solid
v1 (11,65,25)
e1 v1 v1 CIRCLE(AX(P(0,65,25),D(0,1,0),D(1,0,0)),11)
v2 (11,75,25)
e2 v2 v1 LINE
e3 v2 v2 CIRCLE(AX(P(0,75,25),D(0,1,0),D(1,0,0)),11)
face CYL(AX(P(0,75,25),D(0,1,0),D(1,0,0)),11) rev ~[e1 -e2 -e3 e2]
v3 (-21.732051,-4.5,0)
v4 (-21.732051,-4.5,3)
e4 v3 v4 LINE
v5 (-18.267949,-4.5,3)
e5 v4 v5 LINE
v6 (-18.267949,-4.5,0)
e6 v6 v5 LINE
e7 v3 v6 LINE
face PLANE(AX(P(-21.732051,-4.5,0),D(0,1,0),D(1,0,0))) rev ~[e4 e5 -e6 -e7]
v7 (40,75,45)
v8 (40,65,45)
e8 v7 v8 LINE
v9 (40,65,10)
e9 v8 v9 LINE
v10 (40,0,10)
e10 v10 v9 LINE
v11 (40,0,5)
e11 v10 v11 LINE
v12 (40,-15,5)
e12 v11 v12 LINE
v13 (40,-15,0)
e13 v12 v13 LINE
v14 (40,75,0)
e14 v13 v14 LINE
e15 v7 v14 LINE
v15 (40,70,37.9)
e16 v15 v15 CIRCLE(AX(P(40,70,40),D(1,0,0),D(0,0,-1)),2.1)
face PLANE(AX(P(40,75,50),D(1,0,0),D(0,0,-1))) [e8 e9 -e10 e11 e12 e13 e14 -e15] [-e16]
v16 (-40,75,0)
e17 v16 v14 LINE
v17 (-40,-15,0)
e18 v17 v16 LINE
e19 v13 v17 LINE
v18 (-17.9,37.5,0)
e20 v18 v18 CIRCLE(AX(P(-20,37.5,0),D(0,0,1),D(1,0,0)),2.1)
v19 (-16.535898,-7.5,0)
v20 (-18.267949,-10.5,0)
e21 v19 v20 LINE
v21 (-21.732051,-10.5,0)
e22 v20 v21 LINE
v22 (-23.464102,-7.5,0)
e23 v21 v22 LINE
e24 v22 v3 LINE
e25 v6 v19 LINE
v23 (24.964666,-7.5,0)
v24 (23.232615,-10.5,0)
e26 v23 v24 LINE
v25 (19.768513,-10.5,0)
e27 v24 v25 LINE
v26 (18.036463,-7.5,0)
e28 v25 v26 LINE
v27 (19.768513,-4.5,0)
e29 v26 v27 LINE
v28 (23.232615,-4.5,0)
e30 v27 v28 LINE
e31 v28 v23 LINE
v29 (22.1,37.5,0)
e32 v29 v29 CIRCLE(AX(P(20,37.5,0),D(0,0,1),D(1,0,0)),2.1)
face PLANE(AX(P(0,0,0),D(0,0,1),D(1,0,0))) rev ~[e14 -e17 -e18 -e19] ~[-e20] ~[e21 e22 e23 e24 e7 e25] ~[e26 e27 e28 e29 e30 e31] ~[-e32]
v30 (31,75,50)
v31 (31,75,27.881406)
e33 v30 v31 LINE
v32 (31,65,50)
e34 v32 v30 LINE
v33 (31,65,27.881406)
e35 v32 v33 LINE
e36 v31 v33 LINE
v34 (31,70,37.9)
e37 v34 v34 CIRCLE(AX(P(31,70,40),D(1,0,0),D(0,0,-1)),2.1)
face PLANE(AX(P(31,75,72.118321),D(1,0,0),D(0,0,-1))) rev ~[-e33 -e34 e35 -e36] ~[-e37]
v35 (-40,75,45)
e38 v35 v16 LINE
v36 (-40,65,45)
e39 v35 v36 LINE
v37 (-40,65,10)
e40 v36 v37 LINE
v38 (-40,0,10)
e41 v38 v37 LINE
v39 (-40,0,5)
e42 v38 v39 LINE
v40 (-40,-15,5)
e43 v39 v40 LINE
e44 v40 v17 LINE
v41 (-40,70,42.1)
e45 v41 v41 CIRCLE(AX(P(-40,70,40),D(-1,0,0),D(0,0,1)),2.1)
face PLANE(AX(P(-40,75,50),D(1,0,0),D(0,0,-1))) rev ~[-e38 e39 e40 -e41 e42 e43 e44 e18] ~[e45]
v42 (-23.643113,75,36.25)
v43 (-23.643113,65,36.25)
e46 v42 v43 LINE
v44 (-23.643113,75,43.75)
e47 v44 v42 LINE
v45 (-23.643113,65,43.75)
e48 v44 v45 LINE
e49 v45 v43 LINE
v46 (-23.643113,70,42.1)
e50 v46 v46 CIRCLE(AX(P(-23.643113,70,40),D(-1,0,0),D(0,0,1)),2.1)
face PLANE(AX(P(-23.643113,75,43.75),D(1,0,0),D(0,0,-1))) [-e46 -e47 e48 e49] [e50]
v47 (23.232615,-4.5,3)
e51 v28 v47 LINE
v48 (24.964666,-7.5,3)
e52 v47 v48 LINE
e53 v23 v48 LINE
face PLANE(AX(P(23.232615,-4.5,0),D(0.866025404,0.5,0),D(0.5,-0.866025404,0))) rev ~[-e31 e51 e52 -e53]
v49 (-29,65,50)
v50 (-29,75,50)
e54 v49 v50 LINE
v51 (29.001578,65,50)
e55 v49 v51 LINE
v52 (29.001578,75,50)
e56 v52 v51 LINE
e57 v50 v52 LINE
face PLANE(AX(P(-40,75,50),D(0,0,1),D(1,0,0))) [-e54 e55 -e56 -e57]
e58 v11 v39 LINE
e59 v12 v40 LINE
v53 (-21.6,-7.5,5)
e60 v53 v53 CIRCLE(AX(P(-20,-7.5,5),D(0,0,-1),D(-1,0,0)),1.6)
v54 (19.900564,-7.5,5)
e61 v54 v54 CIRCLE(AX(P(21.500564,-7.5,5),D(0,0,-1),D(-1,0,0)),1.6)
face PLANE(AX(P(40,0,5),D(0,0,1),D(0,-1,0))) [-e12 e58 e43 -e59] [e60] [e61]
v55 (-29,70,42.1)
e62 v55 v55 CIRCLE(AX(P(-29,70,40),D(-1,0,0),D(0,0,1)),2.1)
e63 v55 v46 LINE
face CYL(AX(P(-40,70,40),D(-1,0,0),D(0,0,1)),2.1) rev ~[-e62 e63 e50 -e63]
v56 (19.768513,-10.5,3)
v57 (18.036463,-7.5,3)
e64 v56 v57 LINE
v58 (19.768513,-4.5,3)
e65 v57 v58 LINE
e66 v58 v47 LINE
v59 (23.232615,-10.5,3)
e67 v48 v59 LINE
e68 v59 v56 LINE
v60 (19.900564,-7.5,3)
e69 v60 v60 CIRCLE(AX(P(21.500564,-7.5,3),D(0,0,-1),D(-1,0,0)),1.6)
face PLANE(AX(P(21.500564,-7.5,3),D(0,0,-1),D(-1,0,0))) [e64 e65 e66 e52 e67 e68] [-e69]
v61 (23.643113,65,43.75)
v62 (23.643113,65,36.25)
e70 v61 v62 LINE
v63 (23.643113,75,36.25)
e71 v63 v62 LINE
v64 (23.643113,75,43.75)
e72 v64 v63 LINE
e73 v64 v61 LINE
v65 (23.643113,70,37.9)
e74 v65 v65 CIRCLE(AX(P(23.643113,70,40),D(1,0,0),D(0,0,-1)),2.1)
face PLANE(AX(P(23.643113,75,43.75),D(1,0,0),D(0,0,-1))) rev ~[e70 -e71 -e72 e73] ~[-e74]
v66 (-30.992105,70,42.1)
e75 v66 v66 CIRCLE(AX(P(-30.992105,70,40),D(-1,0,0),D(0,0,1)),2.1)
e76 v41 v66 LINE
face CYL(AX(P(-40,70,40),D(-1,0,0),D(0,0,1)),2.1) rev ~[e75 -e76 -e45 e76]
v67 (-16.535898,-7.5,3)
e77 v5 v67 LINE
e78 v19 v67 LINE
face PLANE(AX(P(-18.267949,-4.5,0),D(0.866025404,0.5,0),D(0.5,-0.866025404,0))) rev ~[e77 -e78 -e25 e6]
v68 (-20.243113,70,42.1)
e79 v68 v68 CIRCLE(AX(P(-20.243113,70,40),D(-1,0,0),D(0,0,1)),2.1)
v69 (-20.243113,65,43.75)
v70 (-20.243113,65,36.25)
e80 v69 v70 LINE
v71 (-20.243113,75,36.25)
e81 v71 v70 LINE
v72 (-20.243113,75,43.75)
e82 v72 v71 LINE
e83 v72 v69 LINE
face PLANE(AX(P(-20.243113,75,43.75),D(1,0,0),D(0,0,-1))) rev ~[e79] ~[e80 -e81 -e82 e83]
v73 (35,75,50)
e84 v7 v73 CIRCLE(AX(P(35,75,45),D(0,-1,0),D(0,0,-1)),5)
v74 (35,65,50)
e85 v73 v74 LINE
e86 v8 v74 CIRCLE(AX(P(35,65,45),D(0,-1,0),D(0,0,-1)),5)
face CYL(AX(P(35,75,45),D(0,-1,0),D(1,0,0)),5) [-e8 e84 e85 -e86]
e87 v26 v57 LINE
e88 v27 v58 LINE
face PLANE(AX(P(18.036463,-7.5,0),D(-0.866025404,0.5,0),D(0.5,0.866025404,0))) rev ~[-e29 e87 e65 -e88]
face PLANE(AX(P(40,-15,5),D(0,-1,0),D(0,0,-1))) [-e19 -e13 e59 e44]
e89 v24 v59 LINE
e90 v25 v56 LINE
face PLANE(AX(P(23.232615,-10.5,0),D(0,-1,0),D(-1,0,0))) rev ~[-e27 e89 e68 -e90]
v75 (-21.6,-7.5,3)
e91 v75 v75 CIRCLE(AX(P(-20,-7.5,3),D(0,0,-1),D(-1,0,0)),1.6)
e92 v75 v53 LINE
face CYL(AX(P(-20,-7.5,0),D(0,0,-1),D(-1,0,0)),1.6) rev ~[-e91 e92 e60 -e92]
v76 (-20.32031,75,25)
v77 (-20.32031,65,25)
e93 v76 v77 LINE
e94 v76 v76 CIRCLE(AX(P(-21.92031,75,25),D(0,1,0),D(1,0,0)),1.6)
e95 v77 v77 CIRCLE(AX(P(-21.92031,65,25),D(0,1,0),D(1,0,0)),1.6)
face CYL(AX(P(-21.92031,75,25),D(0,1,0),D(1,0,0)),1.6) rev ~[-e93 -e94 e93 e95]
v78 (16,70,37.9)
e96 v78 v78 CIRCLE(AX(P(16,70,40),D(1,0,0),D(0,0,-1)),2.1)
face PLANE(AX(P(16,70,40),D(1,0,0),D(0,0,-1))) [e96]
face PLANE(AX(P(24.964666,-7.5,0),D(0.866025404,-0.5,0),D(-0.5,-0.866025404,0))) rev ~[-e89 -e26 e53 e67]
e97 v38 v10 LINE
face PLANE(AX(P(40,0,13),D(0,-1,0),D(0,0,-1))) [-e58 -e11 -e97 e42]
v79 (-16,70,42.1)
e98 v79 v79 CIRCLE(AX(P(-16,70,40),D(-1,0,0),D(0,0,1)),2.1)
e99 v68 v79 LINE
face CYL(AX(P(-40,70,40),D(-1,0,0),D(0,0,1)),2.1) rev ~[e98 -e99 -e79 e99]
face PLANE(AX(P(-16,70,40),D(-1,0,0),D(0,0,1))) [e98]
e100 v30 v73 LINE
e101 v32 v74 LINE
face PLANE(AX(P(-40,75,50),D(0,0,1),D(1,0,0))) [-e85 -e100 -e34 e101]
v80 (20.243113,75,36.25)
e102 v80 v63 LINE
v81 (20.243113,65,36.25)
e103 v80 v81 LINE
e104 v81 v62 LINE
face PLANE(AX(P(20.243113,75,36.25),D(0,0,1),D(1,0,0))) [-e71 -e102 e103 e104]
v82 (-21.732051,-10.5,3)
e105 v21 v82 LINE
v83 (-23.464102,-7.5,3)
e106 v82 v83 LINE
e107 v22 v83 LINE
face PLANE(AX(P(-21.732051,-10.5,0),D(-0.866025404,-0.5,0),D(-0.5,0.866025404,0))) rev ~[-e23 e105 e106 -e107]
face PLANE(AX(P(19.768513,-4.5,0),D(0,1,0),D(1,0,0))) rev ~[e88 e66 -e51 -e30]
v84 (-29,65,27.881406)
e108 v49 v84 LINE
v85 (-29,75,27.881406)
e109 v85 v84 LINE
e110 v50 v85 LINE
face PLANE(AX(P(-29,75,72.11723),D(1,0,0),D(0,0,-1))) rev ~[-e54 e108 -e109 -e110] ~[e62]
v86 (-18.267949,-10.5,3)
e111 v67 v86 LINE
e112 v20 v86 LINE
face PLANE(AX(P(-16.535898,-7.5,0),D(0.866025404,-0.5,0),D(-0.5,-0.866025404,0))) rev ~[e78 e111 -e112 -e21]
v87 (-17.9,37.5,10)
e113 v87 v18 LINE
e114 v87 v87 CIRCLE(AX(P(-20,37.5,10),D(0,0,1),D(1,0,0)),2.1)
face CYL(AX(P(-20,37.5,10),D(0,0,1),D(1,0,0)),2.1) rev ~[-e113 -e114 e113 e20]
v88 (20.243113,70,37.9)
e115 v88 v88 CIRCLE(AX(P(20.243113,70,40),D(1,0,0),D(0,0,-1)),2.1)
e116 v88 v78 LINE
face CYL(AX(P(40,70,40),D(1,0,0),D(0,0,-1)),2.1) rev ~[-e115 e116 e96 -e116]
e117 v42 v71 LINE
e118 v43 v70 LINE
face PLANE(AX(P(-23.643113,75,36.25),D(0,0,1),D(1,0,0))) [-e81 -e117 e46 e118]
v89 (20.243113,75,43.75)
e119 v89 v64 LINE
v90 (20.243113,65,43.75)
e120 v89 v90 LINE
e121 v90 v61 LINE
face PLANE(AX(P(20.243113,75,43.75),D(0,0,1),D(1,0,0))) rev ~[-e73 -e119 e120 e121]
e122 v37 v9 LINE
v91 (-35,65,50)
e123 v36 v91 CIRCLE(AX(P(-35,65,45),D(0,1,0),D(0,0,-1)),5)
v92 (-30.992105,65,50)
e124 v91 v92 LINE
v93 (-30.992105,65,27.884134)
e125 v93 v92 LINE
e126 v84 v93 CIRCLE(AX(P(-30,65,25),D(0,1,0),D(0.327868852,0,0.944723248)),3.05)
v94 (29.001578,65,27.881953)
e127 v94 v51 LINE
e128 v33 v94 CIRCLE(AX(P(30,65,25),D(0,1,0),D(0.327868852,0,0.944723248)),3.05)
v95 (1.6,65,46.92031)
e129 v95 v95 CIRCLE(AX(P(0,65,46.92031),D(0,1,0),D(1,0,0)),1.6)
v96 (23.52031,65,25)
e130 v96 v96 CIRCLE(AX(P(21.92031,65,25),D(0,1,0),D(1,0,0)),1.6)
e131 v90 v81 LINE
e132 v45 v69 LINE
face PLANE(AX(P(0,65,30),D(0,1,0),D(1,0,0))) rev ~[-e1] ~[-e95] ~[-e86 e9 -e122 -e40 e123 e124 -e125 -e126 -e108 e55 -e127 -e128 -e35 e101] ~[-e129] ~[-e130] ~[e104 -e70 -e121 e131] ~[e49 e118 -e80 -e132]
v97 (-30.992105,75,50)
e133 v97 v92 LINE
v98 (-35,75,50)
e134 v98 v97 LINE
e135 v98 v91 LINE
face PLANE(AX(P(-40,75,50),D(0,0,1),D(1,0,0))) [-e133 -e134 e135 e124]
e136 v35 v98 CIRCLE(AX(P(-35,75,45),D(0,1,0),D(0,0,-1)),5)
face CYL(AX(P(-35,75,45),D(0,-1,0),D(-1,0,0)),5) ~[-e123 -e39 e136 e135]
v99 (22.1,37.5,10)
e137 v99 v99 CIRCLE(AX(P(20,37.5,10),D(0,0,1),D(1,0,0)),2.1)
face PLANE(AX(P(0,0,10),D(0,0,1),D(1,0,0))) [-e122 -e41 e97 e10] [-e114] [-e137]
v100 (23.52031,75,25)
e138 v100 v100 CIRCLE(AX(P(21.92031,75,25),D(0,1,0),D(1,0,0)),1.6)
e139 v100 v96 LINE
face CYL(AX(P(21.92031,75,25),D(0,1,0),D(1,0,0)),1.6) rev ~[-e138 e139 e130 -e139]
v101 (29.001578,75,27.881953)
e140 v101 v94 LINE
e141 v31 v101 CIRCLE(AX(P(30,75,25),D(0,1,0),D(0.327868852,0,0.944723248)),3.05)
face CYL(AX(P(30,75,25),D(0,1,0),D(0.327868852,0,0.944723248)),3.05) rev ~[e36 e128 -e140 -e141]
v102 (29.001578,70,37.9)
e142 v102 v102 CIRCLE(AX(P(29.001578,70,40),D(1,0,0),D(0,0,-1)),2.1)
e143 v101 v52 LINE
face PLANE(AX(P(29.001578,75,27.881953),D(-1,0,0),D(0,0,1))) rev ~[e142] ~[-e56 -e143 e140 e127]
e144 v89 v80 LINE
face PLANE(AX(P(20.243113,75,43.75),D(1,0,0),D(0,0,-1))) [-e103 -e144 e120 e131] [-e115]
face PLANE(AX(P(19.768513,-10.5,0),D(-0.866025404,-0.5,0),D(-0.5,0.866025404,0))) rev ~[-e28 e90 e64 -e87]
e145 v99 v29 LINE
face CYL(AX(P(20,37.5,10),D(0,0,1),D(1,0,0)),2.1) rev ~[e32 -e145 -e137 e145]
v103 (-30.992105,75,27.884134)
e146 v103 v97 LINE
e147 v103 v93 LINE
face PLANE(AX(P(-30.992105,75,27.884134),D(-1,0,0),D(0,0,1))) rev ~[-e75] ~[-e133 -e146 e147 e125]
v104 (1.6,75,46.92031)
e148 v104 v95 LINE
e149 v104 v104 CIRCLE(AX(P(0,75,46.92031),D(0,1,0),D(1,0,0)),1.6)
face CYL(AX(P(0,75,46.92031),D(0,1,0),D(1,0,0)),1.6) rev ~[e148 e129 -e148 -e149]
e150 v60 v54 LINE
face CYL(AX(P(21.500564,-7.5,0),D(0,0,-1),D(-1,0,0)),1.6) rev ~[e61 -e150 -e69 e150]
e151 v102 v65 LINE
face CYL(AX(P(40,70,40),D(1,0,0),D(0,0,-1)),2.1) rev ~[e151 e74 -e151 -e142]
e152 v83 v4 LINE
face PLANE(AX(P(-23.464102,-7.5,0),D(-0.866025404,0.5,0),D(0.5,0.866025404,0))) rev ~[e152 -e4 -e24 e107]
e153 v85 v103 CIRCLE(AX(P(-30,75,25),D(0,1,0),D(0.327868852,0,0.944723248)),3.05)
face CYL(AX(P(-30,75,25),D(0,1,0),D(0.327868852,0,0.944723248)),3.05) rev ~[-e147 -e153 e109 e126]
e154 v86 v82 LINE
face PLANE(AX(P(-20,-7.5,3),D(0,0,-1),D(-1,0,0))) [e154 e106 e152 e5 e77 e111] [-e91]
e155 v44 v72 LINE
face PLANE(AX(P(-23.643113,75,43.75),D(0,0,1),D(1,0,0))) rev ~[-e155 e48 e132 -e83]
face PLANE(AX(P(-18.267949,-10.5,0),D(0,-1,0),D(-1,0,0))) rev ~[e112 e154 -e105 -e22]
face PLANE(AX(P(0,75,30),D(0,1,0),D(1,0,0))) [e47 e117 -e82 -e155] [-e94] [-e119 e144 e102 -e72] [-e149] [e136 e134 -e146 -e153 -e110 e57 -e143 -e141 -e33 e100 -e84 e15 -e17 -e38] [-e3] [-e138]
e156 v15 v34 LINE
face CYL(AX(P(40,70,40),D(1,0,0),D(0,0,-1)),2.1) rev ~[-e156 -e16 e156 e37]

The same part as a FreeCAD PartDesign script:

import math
import FreeCAD as App
import Part
import Sketcher

V = App.Vector
Q = App.Units.Quantity


def edges_at(feature, points):
    """Names of the edges that pass closest to the given points."""
    edges = feature.Shape.Edges
    near = lambda p: min(range(len(edges)), key=lambda i: edges[i].distToShape(Part.Vertex(*p))[0])
    return sorted({f"Edge{near(p) + 1}" for p in points})

doc = App.newDocument("Part")
body = doc.addObject("PartDesign::Body", "Body")

# Sketch on XY plane
sketch1 = body.newObject("Sketcher::SketchObject", "Sketch")
sketch1.AttachmentSupport = (doc.getObject("XY_Plane"), [""])
sketch1.MapMode = "FlatFace"
sketch1.addGeometry(Part.LineSegment(V(-40, 75, 0), V(-40, -75, 0)), False)
sketch1.addGeometry(Part.LineSegment(V(-40, -75, 0), V(40, -75, 0)), False)
sketch1.addGeometry(Part.LineSegment(V(40, -75, 0), V(40, 75, 0)), False)
sketch1.addGeometry(Part.LineSegment(V(40, 75, 0), V(-40, 75, 0)), False)
sketch1.addConstraint(Sketcher.Constraint("Coincident", 0, 2, 1, 1))
sketch1.addConstraint(Sketcher.Constraint("Coincident", 1, 2, 2, 1))
sketch1.addConstraint(Sketcher.Constraint("Coincident", 2, 2, 3, 1))
sketch1.addConstraint(Sketcher.Constraint("Coincident", 3, 2, 0, 1))
sketch1.addConstraint(Sketcher.Constraint("Vertical", 0))
sketch1.addConstraint(Sketcher.Constraint("Horizontal", 1))
sketch1.addConstraint(Sketcher.Constraint("Vertical", 2))
sketch1.addConstraint(Sketcher.Constraint("Horizontal", 3))
sketch1.addConstraint(Sketcher.Constraint("Symmetric", 0, 2, 2, 2, -1, 1))
sketch1.addConstraint(Sketcher.Constraint("DistanceX", 1, 1, 1, 2, Q("80 mm")))
sketch1.addConstraint(Sketcher.Constraint("DistanceY", 0, 2, 0, 1, Q("150 mm")))
pad1 = body.newObject("PartDesign::Pad", "Pad")
pad1.Profile = sketch1
pad1.Length = 10

# Sketch on XZ plane
sketch2 = body.newObject("Sketcher::SketchObject", "Sketch001")
sketch2.AttachmentSupport = (doc.getObject("XZ_Plane"), [""])
sketch2.MapMode = "FlatFace"
sketch2.AttachmentOffset = App.Placement(V(0, 0, 75), App.Rotation())
sketch2.addGeometry(Part.ArcOfCircle(Part.Circle(V(0, 49, 0), V(0, 0, 1), 6), math.radians(180), math.radians(360)), False)
sketch2.addGeometry(Part.LineSegment(V(-6, 49, 0), V(-6, 50, 0)), False)
sketch2.addGeometry(Part.LineSegment(V(-6, 50, 0), V(-29, 50, 0)), False)
sketch2.addGeometry(Part.LineSegment(V(-29, 50, 0), V(-29, 27.9, 0)), False)
sketch2.addGeometry(Part.ArcOfCircle(Part.Circle(V(-30, 25, 0), V(0, 0, 1), 3), math.radians(109), math.radians(431)), False)
sketch2.addGeometry(Part.LineSegment(V(-31, 27.9, 0), V(-31, 50, 0)), False)
sketch2.addGeometry(Part.LineSegment(V(-31, 50, 0), V(-40, 50, 0)), False)
sketch2.addGeometry(Part.LineSegment(V(-40, 50, 0), V(-40, 10, 0)), False)
sketch2.addGeometry(Part.LineSegment(V(-40, 10, 0), V(40, 10, 0)), False)
sketch2.addGeometry(Part.LineSegment(V(40, 10, 0), V(40, 50, 0)), False)
sketch2.addGeometry(Part.LineSegment(V(40, 50, 0), V(31, 50, 0)), False)
sketch2.addGeometry(Part.LineSegment(V(31, 50, 0), V(31, 27.9, 0)), False)
sketch2.addGeometry(Part.ArcOfCircle(Part.Circle(V(30, 25, 0), V(0, 0, 1), 3), math.radians(109), math.radians(431)), False)
sketch2.addGeometry(Part.LineSegment(V(29, 27.9, 0), V(29, 50, 0)), False)
sketch2.addGeometry(Part.LineSegment(V(29, 50, 0), V(6, 50, 0)), False)
sketch2.addGeometry(Part.LineSegment(V(6, 50, 0), V(6, 49, 0)), False)
sketch2.addGeometry(Part.Circle(V(0, 25, 0), V(0, 0, 1), 11.2), False)
sketch2.addConstraint(Sketcher.Constraint("Tangent", 0, 1, 1, 1))
sketch2.addConstraint(Sketcher.Constraint("Coincident", 1, 2, 2, 1))
sketch2.addConstraint(Sketcher.Constraint("Coincident", 2, 2, 3, 1))
sketch2.addConstraint(Sketcher.Constraint("Coincident", 3, 2, 4, 2))
sketch2.addConstraint(Sketcher.Constraint("Coincident", 4, 1, 5, 1))
sketch2.addConstraint(Sketcher.Constraint("Coincident", 5, 2, 6, 1))
sketch2.addConstraint(Sketcher.Constraint("Coincident", 6, 2, 7, 1))
sketch2.addConstraint(Sketcher.Constraint("Coincident", 7, 2, 8, 1))
sketch2.addConstraint(Sketcher.Constraint("Coincident", 8, 2, 9, 1))
sketch2.addConstraint(Sketcher.Constraint("Coincident", 9, 2, 10, 1))
sketch2.addConstraint(Sketcher.Constraint("Coincident", 10, 2, 11, 1))
sketch2.addConstraint(Sketcher.Constraint("Coincident", 11, 2, 12, 2))
sketch2.addConstraint(Sketcher.Constraint("Coincident", 12, 1, 13, 1))
sketch2.addConstraint(Sketcher.Constraint("Coincident", 13, 2, 14, 1))
sketch2.addConstraint(Sketcher.Constraint("Coincident", 14, 2, 15, 1))
sketch2.addConstraint(Sketcher.Constraint("Tangent", 15, 2, 0, 2))
sketch2.addConstraint(Sketcher.Constraint("Vertical", 1))
sketch2.addConstraint(Sketcher.Constraint("Horizontal", 2))
sketch2.addConstraint(Sketcher.Constraint("Vertical", 3))
sketch2.addConstraint(Sketcher.Constraint("Vertical", 5))
sketch2.addConstraint(Sketcher.Constraint("Horizontal", 6))
sketch2.addConstraint(Sketcher.Constraint("Vertical", 7))
sketch2.addConstraint(Sketcher.Constraint("Horizontal", 8))
sketch2.addConstraint(Sketcher.Constraint("Vertical", 9))
sketch2.addConstraint(Sketcher.Constraint("Horizontal", 10))
sketch2.addConstraint(Sketcher.Constraint("Vertical", 11))
sketch2.addConstraint(Sketcher.Constraint("Vertical", 13))
sketch2.addConstraint(Sketcher.Constraint("Horizontal", 14))
sketch2.addConstraint(Sketcher.Constraint("Vertical", 15))
sketch2.addConstraint(Sketcher.Constraint("Equal", 4, 12))
sketch2.addConstraint(Sketcher.Constraint("Symmetric", 4, 3, 12, 3, -2))
sketch2.addConstraint(Sketcher.Constraint("Symmetric", 6, 2, 9, 2, -2))
sketch2.addConstraint(Sketcher.Constraint("Symmetric", 2, 2, 13, 2, -2))
sketch2.addConstraint(Sketcher.Constraint("PointOnObject", 0, 3, -2))
sketch2.addConstraint(Sketcher.Constraint("PointOnObject", 16, 3, -2))
sketch2.addConstraint(Sketcher.Constraint("Horizontal", 12, 3, 16, 3))
sketch2.addConstraint(Sketcher.Constraint("Horizontal", 3, 2, 4, 1))
sketch2.addConstraint(Sketcher.Constraint("Horizontal", 2, 2, 5, 2))
sketch2.addConstraint(Sketcher.Constraint("Horizontal", 4, 1, 11, 2))
sketch2.addConstraint(Sketcher.Constraint("Radius", 0, Q("6 mm")))
sketch2.addConstraint(Sketcher.Constraint("Diameter", 16, Q("22.5 mm")))
sketch2.addConstraint(Sketcher.Constraint("DistanceX", 2, 2, 2, 1, Q("23 mm")))
sketch2.addConstraint(Sketcher.Constraint("DistanceX", 6, 2, 6, 1, Q("9 mm")))
sketch2.addConstraint(Sketcher.Constraint("DistanceX", 8, 1, 8, 2, Q("80 mm")))
sketch2.addConstraint(Sketcher.Constraint("DistanceY", 1, 1, 1, 2, Q("1 mm")))
sketch2.addConstraint(Sketcher.Constraint("DistanceY", 7, 2, 7, 1, Q("40 mm")))
sketch2.addConstraint(Sketcher.Constraint("Radius", 4, Q("3.05 mm")))
sketch2.addConstraint(Sketcher.Constraint("DistanceY", -1, 1, 0, 3, Q("49 mm")))
sketch2.addConstraint(Sketcher.Constraint("DistanceY", -1, 1, 4, 3, Q("25 mm")))
pad2 = body.newObject("PartDesign::Pad", "Pad001")
pad2.Profile = sketch2
pad2.Length = 10
pad2.Reversed = True

# Sketch on XZ plane
sketch3 = body.newObject("Sketcher::SketchObject", "Sketch002")
sketch3.AttachmentSupport = (doc.getObject("XZ_Plane"), [""])
sketch3.MapMode = "FlatFace"
sketch3.AttachmentOffset = App.Placement(V(0, 0, 75), App.Rotation())
sketch3.addGeometry(Part.Circle(V(0, 25, 0), V(0, 0, 1), 11), False)
sketch3.addGeometry(Part.Circle(V(0, 25, 0), V(0, 0, 1), 5), False)
sketch3.addConstraint(Sketcher.Constraint("Coincident", 1, 3, 0, 3))
sketch3.addConstraint(Sketcher.Constraint("PointOnObject", 0, 3, -2))
sketch3.addConstraint(Sketcher.Constraint("Diameter", 1, Q("10 mm")))
sketch3.addConstraint(Sketcher.Constraint("Diameter", 0, Q("22.5 mm")))
sketch3.addConstraint(Sketcher.Constraint("DistanceY", -1, 1, 0, 3, Q("25 mm")))
pad3 = body.newObject("PartDesign::Pad", "Pad002")
pad3.Profile = sketch3
pad3.Length = 4
pad3.Reversed = True

# Sketch on YZ plane
sketch4 = body.newObject("Sketcher::SketchObject", "Sketch003")
sketch4.AttachmentSupport = (doc.getObject("YZ_Plane"), [""])
sketch4.MapMode = "FlatFace"
sketch4.AttachmentOffset = App.Placement(V(0, 0, 40), App.Rotation())
sketch4.addGeometry(Part.Circle(V(-70, 40, 0), V(0, 0, 1), 2.1), False)
sketch4.addConstraint(Sketcher.Constraint("Diameter", 0, Q("4.2 mm")))
sketch4.addConstraint(Sketcher.Constraint("DistanceX", 0, 3, -1, 1, Q("70 mm")))
sketch4.addConstraint(Sketcher.Constraint("DistanceY", -1, 1, 0, 3, Q("40 mm")))
pocket1 = body.newObject("PartDesign::Pocket", "Pocket")
pocket1.Profile = sketch4
pocket1.Length = 24

# Sketch on XZ plane
sketch5 = body.newObject("Sketcher::SketchObject", "Sketch004")
sketch5.AttachmentSupport = (doc.getObject("XZ_Plane"), [""])
sketch5.MapMode = "FlatFace"
sketch5.AttachmentOffset = App.Placement(V(0, 0, 75), App.Rotation())
sketch5.addGeometry(Part.LineSegment(V(-23.6, 43.8, 0), V(-23.6, 36.2, 0)), False)
sketch5.addGeometry(Part.LineSegment(V(-23.6, 36.2, 0), V(-20.2, 36.2, 0)), False)
sketch5.addGeometry(Part.LineSegment(V(-20.2, 36.2, 0), V(-20.2, 43.8, 0)), False)
sketch5.addGeometry(Part.LineSegment(V(-20.2, 43.8, 0), V(-23.6, 43.8, 0)), False)
sketch5.addGeometry(Part.LineSegment(V(20.2, 43.8, 0), V(20.2, 36.2, 0)), False)
sketch5.addGeometry(Part.LineSegment(V(20.2, 36.2, 0), V(23.6, 36.2, 0)), False)
sketch5.addGeometry(Part.LineSegment(V(23.6, 36.2, 0), V(23.6, 43.8, 0)), False)
sketch5.addGeometry(Part.LineSegment(V(23.6, 43.8, 0), V(20.2, 43.8, 0)), False)
sketch5.addConstraint(Sketcher.Constraint("Coincident", 0, 2, 1, 1))
sketch5.addConstraint(Sketcher.Constraint("Coincident", 1, 2, 2, 1))
sketch5.addConstraint(Sketcher.Constraint("Coincident", 2, 2, 3, 1))
sketch5.addConstraint(Sketcher.Constraint("Coincident", 3, 2, 0, 1))
sketch5.addConstraint(Sketcher.Constraint("Coincident", 4, 2, 5, 1))
sketch5.addConstraint(Sketcher.Constraint("Coincident", 5, 2, 6, 1))
sketch5.addConstraint(Sketcher.Constraint("Coincident", 6, 2, 7, 1))
sketch5.addConstraint(Sketcher.Constraint("Coincident", 7, 2, 4, 1))
sketch5.addConstraint(Sketcher.Constraint("Vertical", 0))
sketch5.addConstraint(Sketcher.Constraint("Horizontal", 1))
sketch5.addConstraint(Sketcher.Constraint("Vertical", 2))
sketch5.addConstraint(Sketcher.Constraint("Horizontal", 3))
sketch5.addConstraint(Sketcher.Constraint("Vertical", 4))
sketch5.addConstraint(Sketcher.Constraint("Horizontal", 5))
sketch5.addConstraint(Sketcher.Constraint("Vertical", 6))
sketch5.addConstraint(Sketcher.Constraint("Horizontal", 7))
sketch5.addConstraint(Sketcher.Constraint("Symmetric", 1, 2, 4, 2, -2))
sketch5.addConstraint(Sketcher.Constraint("Symmetric", 3, 2, 6, 2, -2))
sketch5.addConstraint(Sketcher.Constraint("DistanceX", 1, 1, 1, 2, Q("3.4 mm")))
sketch5.addConstraint(Sketcher.Constraint("DistanceY", 0, 2, 0, 1, Q("7.5 mm")))
sketch5.addConstraint(Sketcher.Constraint("DistanceY", -1, 1, 0, 2, Q("36.25 mm")))
sketch5.addConstraint(Sketcher.Constraint("DistanceX", 0, 2, -1, 1, Q("23.643113 mm")))
pocket2 = body.newObject("PartDesign::Pocket", "Pocket001")
pocket2.Profile = sketch5
pocket2.Length = 24

# Sketch on YZ plane
sketch6 = body.newObject("Sketcher::SketchObject", "Sketch005")
sketch6.AttachmentSupport = (doc.getObject("YZ_Plane"), [""])
sketch6.MapMode = "FlatFace"
sketch6.AttachmentOffset = App.Placement(V(0, 0, -40), App.Rotation())
sketch6.addGeometry(Part.Circle(V(-70, 40, 0), V(0, 0, 1), 2.1), False)
sketch6.addConstraint(Sketcher.Constraint("Diameter", 0, Q("4.2 mm")))
sketch6.addConstraint(Sketcher.Constraint("DistanceX", 0, 3, -1, 1, Q("70 mm")))
sketch6.addConstraint(Sketcher.Constraint("DistanceY", -1, 1, 0, 3, Q("40 mm")))
pocket3 = body.newObject("PartDesign::Pocket", "Pocket002")
pocket3.Profile = sketch6
pocket3.Length = 24
pocket3.Reversed = True

# Sketch on XZ plane
sketch7 = body.newObject("Sketcher::SketchObject", "Sketch006")
sketch7.AttachmentSupport = (doc.getObject("XZ_Plane"), [""])
sketch7.MapMode = "FlatFace"
sketch7.AttachmentOffset = App.Placement(V(0, 0, -75), App.Rotation())
sketch7.addGeometry(Part.LineSegment(V(-40, 10, 0), V(-40, 50, 0)), False)
sketch7.addGeometry(Part.LineSegment(V(-40, 50, 0), V(40, 50, 0)), False)
sketch7.addGeometry(Part.LineSegment(V(40, 50, 0), V(40, 10, 0)), False)
sketch7.addGeometry(Part.LineSegment(V(40, 10, 0), V(-40, 10, 0)), False)
sketch7.addGeometry(Part.Circle(V(0, 46.9, 0), V(0, 0, 1), 1.6), False)
sketch7.addGeometry(Part.Circle(V(-21.9, 25, 0), V(0, 0, 1), 1.6), False)
sketch7.addGeometry(Part.Circle(V(0, 25, 0), V(0, 0, 1), 11), False)
sketch7.addGeometry(Part.Circle(V(21.9, 25, 0), V(0, 0, 1), 1.6), False)
sketch7.addConstraint(Sketcher.Constraint("Coincident", 0, 2, 1, 1))
sketch7.addConstraint(Sketcher.Constraint("Coincident", 1, 2, 2, 1))
sketch7.addConstraint(Sketcher.Constraint("Coincident", 2, 2, 3, 1))
sketch7.addConstraint(Sketcher.Constraint("Coincident", 3, 2, 0, 1))
sketch7.addConstraint(Sketcher.Constraint("Vertical", 0))
sketch7.addConstraint(Sketcher.Constraint("Horizontal", 1))
sketch7.addConstraint(Sketcher.Constraint("Vertical", 2))
sketch7.addConstraint(Sketcher.Constraint("Horizontal", 3))
sketch7.addConstraint(Sketcher.Constraint("Equal", 4, 5))
sketch7.addConstraint(Sketcher.Constraint("Equal", 5, 7))
sketch7.addConstraint(Sketcher.Constraint("Symmetric", 5, 3, 7, 3, -2))
sketch7.addConstraint(Sketcher.Constraint("PointOnObject", 4, 3, -2))
sketch7.addConstraint(Sketcher.Constraint("PointOnObject", 6, 3, -2))
sketch7.addConstraint(Sketcher.Constraint("Horizontal", 5, 3, 6, 3))
sketch7.addConstraint(Sketcher.Constraint("Diameter", 6, Q("22 mm")))
sketch7.addConstraint(Sketcher.Constraint("Diameter", 4, Q("3.2 mm")))
sketch7.addConstraint(Sketcher.Constraint("DistanceX", 1, 1, 1, 2, Q("80 mm")))
sketch7.addConstraint(Sketcher.Constraint("DistanceY", 0, 1, 0, 2, Q("40 mm")))
sketch7.addConstraint(Sketcher.Constraint("DistanceY", -1, 1, 5, 3, Q("25 mm")))
sketch7.addConstraint(Sketcher.Constraint("DistanceX", 0, 2, -1, 1, Q("40 mm")))
sketch7.addConstraint(Sketcher.Constraint("DistanceY", -1, 1, 0, 2, Q("50 mm")))
sketch7.addConstraint(Sketcher.Constraint("DistanceY", -1, 1, 4, 3, Q("46.92031 mm")))
sketch7.addConstraint(Sketcher.Constraint("DistanceX", 5, 3, -1, 1, Q("21.92031 mm")))
pad4 = body.newObject("PartDesign::Pad", "Pad003")
pad4.Profile = sketch7
pad4.Length = 10
doc.recompute()

fillet = body.newObject("PartDesign::Fillet", "Fillet")
fillet.Base = (pad4, edges_at(pad4, [
    (40, 70, 50),
    (-40, 70, 50),
    (40, -70, 50),
    (-40, -70, 50),
]))
fillet.Radius = 5

# Sketch on XZ plane
sketch8 = body.newObject("Sketcher::SketchObject", "Sketch007")
sketch8.AttachmentSupport = (doc.getObject("XZ_Plane"), [""])
sketch8.MapMode = "FlatFace"
sketch8.AttachmentOffset = App.Placement(V(0, 0, -75), App.Rotation())
sketch8.addGeometry(Part.LineSegment(V(-31, 72.1, 0), V(-29, 72.1, 0)), False)
sketch8.addGeometry(Part.LineSegment(V(-29, 72.1, 0), V(-29, 27.9, 0)), False)
sketch8.addGeometry(Part.ArcOfCircle(Part.Circle(V(-30, 25, 0), V(0, 0, 1), 3), math.radians(109), math.radians(431)), False)
sketch8.addGeometry(Part.LineSegment(V(-31, 27.9, 0), V(-31, 72.1, 0)), False)
sketch8.addGeometry(Part.LineSegment(V(29, 72.1, 0), V(31, 72.1, 0)), False)
sketch8.addGeometry(Part.LineSegment(V(31, 72.1, 0), V(31, 27.9, 0)), False)
sketch8.addGeometry(Part.ArcOfCircle(Part.Circle(V(30, 25, 0), V(0, 0, 1), 3), math.radians(109), math.radians(431)), False)
sketch8.addGeometry(Part.LineSegment(V(29, 27.9, 0), V(29, 72.1, 0)), False)
sketch8.addGeometry(Part.LineSegment(V(-23.6, 36.2, 0), V(-23.6, 43.8, 0)), False)
sketch8.addGeometry(Part.LineSegment(V(-23.6, 43.8, 0), V(-20.2, 43.8, 0)), False)
sketch8.addGeometry(Part.LineSegment(V(-20.2, 43.8, 0), V(-20.2, 36.2, 0)), False)
sketch8.addGeometry(Part.LineSegment(V(-20.2, 36.2, 0), V(-23.6, 36.2, 0)), False)
sketch8.addGeometry(Part.LineSegment(V(20.2, 36.2, 0), V(20.2, 43.8, 0)), False)
sketch8.addGeometry(Part.LineSegment(V(20.2, 43.8, 0), V(23.6, 43.8, 0)), False)
sketch8.addGeometry(Part.LineSegment(V(23.6, 43.8, 0), V(23.6, 36.2, 0)), False)
sketch8.addGeometry(Part.LineSegment(V(23.6, 36.2, 0), V(20.2, 36.2, 0)), False)
sketch8.addConstraint(Sketcher.Constraint("Coincident", 0, 2, 1, 1))
sketch8.addConstraint(Sketcher.Constraint("Coincident", 1, 2, 2, 2))
sketch8.addConstraint(Sketcher.Constraint("Coincident", 2, 1, 3, 1))
sketch8.addConstraint(Sketcher.Constraint("Coincident", 3, 2, 0, 1))
sketch8.addConstraint(Sketcher.Constraint("Coincident", 4, 2, 5, 1))
sketch8.addConstraint(Sketcher.Constraint("Coincident", 5, 2, 6, 2))
sketch8.addConstraint(Sketcher.Constraint("Coincident", 6, 1, 7, 1))
sketch8.addConstraint(Sketcher.Constraint("Coincident", 7, 2, 4, 1))
sketch8.addConstraint(Sketcher.Constraint("Coincident", 8, 2, 9, 1))
sketch8.addConstraint(Sketcher.Constraint("Coincident", 9, 2, 10, 1))
sketch8.addConstraint(Sketcher.Constraint("Coincident", 10, 2, 11, 1))
sketch8.addConstraint(Sketcher.Constraint("Coincident", 11, 2, 8, 1))
sketch8.addConstraint(Sketcher.Constraint("Coincident", 12, 2, 13, 1))
sketch8.addConstraint(Sketcher.Constraint("Coincident", 13, 2, 14, 1))
sketch8.addConstraint(Sketcher.Constraint("Coincident", 14, 2, 15, 1))
sketch8.addConstraint(Sketcher.Constraint("Coincident", 15, 2, 12, 1))
sketch8.addConstraint(Sketcher.Constraint("Horizontal", 0))
sketch8.addConstraint(Sketcher.Constraint("Vertical", 1))
sketch8.addConstraint(Sketcher.Constraint("Vertical", 3))
sketch8.addConstraint(Sketcher.Constraint("Horizontal", 4))
sketch8.addConstraint(Sketcher.Constraint("Vertical", 5))
sketch8.addConstraint(Sketcher.Constraint("Vertical", 7))
sketch8.addConstraint(Sketcher.Constraint("Vertical", 8))
sketch8.addConstraint(Sketcher.Constraint("Horizontal", 9))
sketch8.addConstraint(Sketcher.Constraint("Vertical", 10))
sketch8.addConstraint(Sketcher.Constraint("Horizontal", 11))
sketch8.addConstraint(Sketcher.Constraint("Vertical", 12))
sketch8.addConstraint(Sketcher.Constraint("Horizontal", 13))
sketch8.addConstraint(Sketcher.Constraint("Vertical", 14))
sketch8.addConstraint(Sketcher.Constraint("Horizontal", 15))
sketch8.addConstraint(Sketcher.Constraint("Equal", 2, 6))
sketch8.addConstraint(Sketcher.Constraint("Symmetric", 2, 3, 6, 3, -2))
sketch8.addConstraint(Sketcher.Constraint("Symmetric", 9, 2, 12, 2, -2))
sketch8.addConstraint(Sketcher.Constraint("Symmetric", 11, 2, 14, 2, -2))
sketch8.addConstraint(Sketcher.Constraint("Horizontal", 1, 2, 5, 2))
sketch8.addConstraint(Sketcher.Constraint("Radius", 2, Q("3.05 mm")))
sketch8.addConstraint(Sketcher.Constraint("DistanceX", 9, 1, 9, 2, Q("3.4 mm")))
sketch8.addConstraint(Sketcher.Constraint("DistanceY", 8, 1, 8, 2, Q("7.5 mm")))
sketch8.addConstraint(Sketcher.Constraint("DistanceX", 2, 3, -1, 1, Q("30 mm")))
sketch8.addConstraint(Sketcher.Constraint("DistanceY", -1, 1, 2, 3, Q("25 mm")))
sketch8.addConstraint(Sketcher.Constraint("DistanceX", 0, 2, -1, 1, Q("29 mm")))
sketch8.addConstraint(Sketcher.Constraint("DistanceY", -1, 1, 8, 2, Q("43.75 mm")))
sketch8.addConstraint(Sketcher.Constraint("DistanceX", 0, 1, 0, 2, Q("1.992105 mm")))
sketch8.addConstraint(Sketcher.Constraint("DistanceX", 4, 1, 4, 2, Q("1.998422 mm")))
sketch8.addConstraint(Sketcher.Constraint("DistanceY", 1, 2, 1, 1, Q("44.235824 mm")))
sketch8.addConstraint(Sketcher.Constraint("DistanceY", 5, 2, 5, 1, Q("44.236915 mm")))
sketch8.addConstraint(Sketcher.Constraint("DistanceX", 8, 2, -1, 1, Q("23.643113 mm")))
pocket4 = body.newObject("PartDesign::Pocket", "Pocket003")
pocket4.Profile = sketch8
pocket4.Length = 10
pocket4.Reversed = True

# Sketch on YZ plane
sketch9 = body.newObject("Sketcher::SketchObject", "Sketch008")
sketch9.AttachmentSupport = (doc.getObject("YZ_Plane"), [""])
sketch9.MapMode = "FlatFace"
sketch9.AttachmentOffset = App.Placement(V(0, 0, 40), App.Rotation())
sketch9.addGeometry(Part.Circle(V(70, 40, 0), V(0, 0, 1), 2.1), False)
sketch9.addConstraint(Sketcher.Constraint("Diameter", 0, Q("4.2 mm")))
sketch9.addConstraint(Sketcher.Constraint("DistanceX", -1, 1, 0, 3, Q("70 mm")))
sketch9.addConstraint(Sketcher.Constraint("DistanceY", -1, 1, 0, 3, Q("40 mm")))
pocket5 = body.newObject("PartDesign::Pocket", "Pocket004")
pocket5.Profile = sketch9
pocket5.Length = 24

# Sketch on YZ plane
sketch10 = body.newObject("Sketcher::SketchObject", "Sketch009")
sketch10.AttachmentSupport = (doc.getObject("YZ_Plane"), [""])
sketch10.MapMode = "FlatFace"
sketch10.AttachmentOffset = App.Placement(V(0, 0, -40), App.Rotation())
sketch10.addGeometry(Part.Circle(V(70, 40, 0), V(0, 0, 1), 2.1), False)
sketch10.addConstraint(Sketcher.Constraint("Diameter", 0, Q("4.2 mm")))
sketch10.addConstraint(Sketcher.Constraint("DistanceX", -1, 1, 0, 3, Q("70 mm")))
sketch10.addConstraint(Sketcher.Constraint("DistanceY", -1, 1, 0, 3, Q("40 mm")))
pocket6 = body.newObject("PartDesign::Pocket", "Pocket005")
pocket6.Profile = sketch10
pocket6.Length = 24
pocket6.Reversed = True

# Sketch on XZ plane
sketch11 = body.newObject("Sketcher::SketchObject", "Sketch010")
sketch11.AttachmentSupport = (doc.getObject("XZ_Plane"), [""])
sketch11.MapMode = "FlatFace"
sketch11.AttachmentOffset = App.Placement(V(0, 0, 75), App.Rotation())
sketch11.addGeometry(Part.LineSegment(V(-14, 47, 0), V(-14, 45, 0)), False)
sketch11.addGeometry(Part.LineSegment(V(-14, 45, 0), V(-10, 45, 0)), False)
sketch11.addGeometry(Part.LineSegment(V(-10, 45, 0), V(-10, 47, 0)), False)
sketch11.addGeometry(Part.LineSegment(V(-10, 47, 0), V(-14, 47, 0)), False)
sketch11.addGeometry(Part.LineSegment(V(10, 47, 0), V(10, 45, 0)), False)
sketch11.addGeometry(Part.LineSegment(V(10, 45, 0), V(14, 45, 0)), False)
sketch11.addGeometry(Part.LineSegment(V(14, 45, 0), V(14, 47, 0)), False)
sketch11.addGeometry(Part.LineSegment(V(14, 47, 0), V(10, 47, 0)), False)
sketch11.addConstraint(Sketcher.Constraint("Coincident", 0, 2, 1, 1))
sketch11.addConstraint(Sketcher.Constraint("Coincident", 1, 2, 2, 1))
sketch11.addConstraint(Sketcher.Constraint("Coincident", 2, 2, 3, 1))
sketch11.addConstraint(Sketcher.Constraint("Coincident", 3, 2, 0, 1))
sketch11.addConstraint(Sketcher.Constraint("Coincident", 4, 2, 5, 1))
sketch11.addConstraint(Sketcher.Constraint("Coincident", 5, 2, 6, 1))
sketch11.addConstraint(Sketcher.Constraint("Coincident", 6, 2, 7, 1))
sketch11.addConstraint(Sketcher.Constraint("Coincident", 7, 2, 4, 1))
sketch11.addConstraint(Sketcher.Constraint("Vertical", 0))
sketch11.addConstraint(Sketcher.Constraint("Horizontal", 1))
sketch11.addConstraint(Sketcher.Constraint("Vertical", 2))
sketch11.addConstraint(Sketcher.Constraint("Horizontal", 3))
sketch11.addConstraint(Sketcher.Constraint("Vertical", 4))
sketch11.addConstraint(Sketcher.Constraint("Horizontal", 5))
sketch11.addConstraint(Sketcher.Constraint("Vertical", 6))
sketch11.addConstraint(Sketcher.Constraint("Horizontal", 7))
sketch11.addConstraint(Sketcher.Constraint("Symmetric", 1, 2, 4, 2, -2))
sketch11.addConstraint(Sketcher.Constraint("Symmetric", 3, 2, 6, 2, -2))
sketch11.addConstraint(Sketcher.Constraint("DistanceX", 1, 1, 1, 2, Q("4 mm")))
sketch11.addConstraint(Sketcher.Constraint("DistanceY", 0, 2, 0, 1, Q("2 mm")))
sketch11.addConstraint(Sketcher.Constraint("DistanceX", 0, 2, -1, 1, Q("14 mm")))
sketch11.addConstraint(Sketcher.Constraint("DistanceY", -1, 1, 0, 2, Q("45 mm")))
pocket7 = body.newObject("PartDesign::Pocket", "Pocket006")
pocket7.Profile = sketch11
pocket7.Length = 10

# Sketch on XY plane
sketch12 = body.newObject("Sketcher::SketchObject", "Sketch011")
sketch12.AttachmentSupport = (doc.getObject("XY_Plane"), [""])
sketch12.MapMode = "FlatFace"
sketch12.AttachmentOffset = App.Placement(V(0, 0, 10), App.Rotation())
sketch12.addGeometry(Part.Circle(V(-20, 37.5, 0), V(0, 0, 1), 2.1), False)
sketch12.addGeometry(Part.Circle(V(20, 37.5, 0), V(0, 0, 1), 2.1), False)
sketch12.addGeometry(Part.Circle(V(20, -37.5, 0), V(0, 0, 1), 2.1), False)
sketch12.addGeometry(Part.Circle(V(-20, -37.5, 0), V(0, 0, 1), 2.1), False)
sketch12.addConstraint(Sketcher.Constraint("Equal", 0, 1))
sketch12.addConstraint(Sketcher.Constraint("Equal", 1, 2))
sketch12.addConstraint(Sketcher.Constraint("Equal", 2, 3))
sketch12.addConstraint(Sketcher.Constraint("Symmetric", 0, 3, 2, 3, -1, 1))
sketch12.addConstraint(Sketcher.Constraint("Symmetric", 1, 3, 3, 3, -1, 1))
sketch12.addConstraint(Sketcher.Constraint("Symmetric", 0, 3, 1, 3, -2))
sketch12.addConstraint(Sketcher.Constraint("Diameter", 0, Q("4.2 mm")))
sketch12.addConstraint(Sketcher.Constraint("DistanceX", 0, 3, -1, 1, Q("20 mm")))
sketch12.addConstraint(Sketcher.Constraint("DistanceY", 2, 3, 1, 3, Q("75 mm")))
pocket8 = body.newObject("PartDesign::Pocket", "Pocket007")
pocket8.Profile = sketch12
pocket8.Type = "ThroughAll"

# Sketch on YZ plane
sketch13 = body.newObject("Sketcher::SketchObject", "Sketch012")
sketch13.AttachmentSupport = (doc.getObject("YZ_Plane"), [""])
sketch13.MapMode = "FlatFace"
sketch13.AttachmentOffset = App.Placement(V(0, 0, 40), App.Rotation())
sketch13.addGeometry(Part.LineSegment(V(-15, 13, 0), V(-15, 10, 0)), False)
sketch13.addGeometry(Part.LineSegment(V(-15, 10, 0), V(-65, 10, 0)), False)
sketch13.addGeometry(Part.LineSegment(V(-65, 10, 0), V(-65, 50, 0)), False)
sketch13.addGeometry(Part.LineSegment(V(-65, 50, 0), V(-75, 50, 0)), False)
sketch13.addGeometry(Part.LineSegment(V(-75, 50, 0), V(-75, 0, 0)), False)
sketch13.addGeometry(Part.LineSegment(V(-75, 0, 0), V(-15, 0, 0)), False)
sketch13.addGeometry(Part.LineSegment(V(-15, 0, 0), V(-15, 5, 0)), False)
sketch13.addGeometry(Part.LineSegment(V(-15, 5, 0), V(0, 5, 0)), False)
sketch13.addGeometry(Part.LineSegment(V(0, 5, 0), V(0, 13, 0)), False)
sketch13.addGeometry(Part.LineSegment(V(0, 13, 0), V(-15, 13, 0)), False)
sketch13.addConstraint(Sketcher.Constraint("Coincident", 0, 2, 1, 1))
sketch13.addConstraint(Sketcher.Constraint("Coincident", 1, 2, 2, 1))
sketch13.addConstraint(Sketcher.Constraint("Coincident", 2, 2, 3, 1))
sketch13.addConstraint(Sketcher.Constraint("Coincident", 3, 2, 4, 1))
sketch13.addConstraint(Sketcher.Constraint("Coincident", 4, 2, 5, 1))
sketch13.addConstraint(Sketcher.Constraint("Coincident", 5, 2, 6, 1))
sketch13.addConstraint(Sketcher.Constraint("Coincident", 6, 2, 7, 1))
sketch13.addConstraint(Sketcher.Constraint("Coincident", 7, 2, 8, 1))
sketch13.addConstraint(Sketcher.Constraint("Coincident", 8, 2, 9, 1))
sketch13.addConstraint(Sketcher.Constraint("Coincident", 9, 2, 0, 1))
sketch13.addConstraint(Sketcher.Constraint("Vertical", 0))
sketch13.addConstraint(Sketcher.Constraint("Horizontal", 1))
sketch13.addConstraint(Sketcher.Constraint("Vertical", 2))
sketch13.addConstraint(Sketcher.Constraint("Horizontal", 3))
sketch13.addConstraint(Sketcher.Constraint("Vertical", 4))
sketch13.addConstraint(Sketcher.Constraint("Horizontal", 5))
sketch13.addConstraint(Sketcher.Constraint("Vertical", 6))
sketch13.addConstraint(Sketcher.Constraint("Horizontal", 7))
sketch13.addConstraint(Sketcher.Constraint("Vertical", 8))
sketch13.addConstraint(Sketcher.Constraint("Horizontal", 9))
sketch13.addConstraint(Sketcher.Constraint("PointOnObject", 4, 2, -1))
sketch13.addConstraint(Sketcher.Constraint("PointOnObject", 7, 2, -2))
sketch13.addConstraint(Sketcher.Constraint("Vertical", 0, 2, 5, 2))
sketch13.addConstraint(Sketcher.Constraint("Equal", 1, 4))
sketch13.addConstraint(Sketcher.Constraint("DistanceX", 1, 2, 1, 1, Q("50 mm")))
sketch13.addConstraint(Sketcher.Constraint("DistanceX", 3, 2, 3, 1, Q("10 mm")))
sketch13.addConstraint(Sketcher.Constraint("DistanceX", 7, 1, 7, 2, Q("15 mm")))
sketch13.addConstraint(Sketcher.Constraint("DistanceY", 0, 2, 0, 1, Q("3 mm")))
sketch13.addConstraint(Sketcher.Constraint("DistanceY", 2, 1, 2, 2, Q("40 mm")))
sketch13.addConstraint(Sketcher.Constraint("DistanceY", 6, 1, 6, 2, Q("5 mm")))
pocket9 = body.newObject("PartDesign::Pocket", "Pocket008")
pocket9.Profile = sketch13
pocket9.Type = "ThroughAll"

# Sketch on XY plane
sketch14 = body.newObject("Sketcher::SketchObject", "Sketch013")
sketch14.AttachmentSupport = (doc.getObject("XY_Plane"), [""])
sketch14.MapMode = "FlatFace"
sketch14.addGeometry(Part.LineSegment(V(18, -7.5, 0), V(19.8, -4.5, 0)), False)
sketch14.addGeometry(Part.LineSegment(V(19.8, -4.5, 0), V(23.2, -4.5, 0)), False)
sketch14.addGeometry(Part.LineSegment(V(23.2, -4.5, 0), V(25, -7.5, 0)), False)
sketch14.addGeometry(Part.LineSegment(V(25, -7.5, 0), V(23.2, -10.5, 0)), False)
sketch14.addGeometry(Part.LineSegment(V(23.2, -10.5, 0), V(19.8, -10.5, 0)), False)
sketch14.addGeometry(Part.LineSegment(V(19.8, -10.5, 0), V(18, -7.5, 0)), False)
sketch14.addGeometry(Part.LineSegment(V(-23.5, -7.5, 0), V(-21.7, -4.5, 0)), False)
sketch14.addGeometry(Part.LineSegment(V(-21.7, -4.5, 0), V(-18.3, -4.5, 0)), False)
sketch14.addGeometry(Part.LineSegment(V(-18.3, -4.5, 0), V(-16.5, -7.5, 0)), False)
sketch14.addGeometry(Part.LineSegment(V(-16.5, -7.5, 0), V(-18.3, -10.5, 0)), False)
sketch14.addGeometry(Part.LineSegment(V(-18.3, -10.5, 0), V(-21.7, -10.5, 0)), False)
sketch14.addGeometry(Part.LineSegment(V(-21.7, -10.5, 0), V(-23.5, -7.5, 0)), False)
sketch14.addConstraint(Sketcher.Constraint("Coincident", 0, 2, 1, 1))
sketch14.addConstraint(Sketcher.Constraint("Coincident", 1, 2, 2, 1))
sketch14.addConstraint(Sketcher.Constraint("Coincident", 2, 2, 3, 1))
sketch14.addConstraint(Sketcher.Constraint("Coincident", 3, 2, 4, 1))
sketch14.addConstraint(Sketcher.Constraint("Coincident", 4, 2, 5, 1))
sketch14.addConstraint(Sketcher.Constraint("Coincident", 5, 2, 0, 1))
sketch14.addConstraint(Sketcher.Constraint("Coincident", 6, 2, 7, 1))
sketch14.addConstraint(Sketcher.Constraint("Coincident", 7, 2, 8, 1))
sketch14.addConstraint(Sketcher.Constraint("Coincident", 8, 2, 9, 1))
sketch14.addConstraint(Sketcher.Constraint("Coincident", 9, 2, 10, 1))
sketch14.addConstraint(Sketcher.Constraint("Coincident", 10, 2, 11, 1))
sketch14.addConstraint(Sketcher.Constraint("Coincident", 11, 2, 6, 1))
sketch14.addConstraint(Sketcher.Constraint("Horizontal", 1))
sketch14.addConstraint(Sketcher.Constraint("Horizontal", 4))
sketch14.addConstraint(Sketcher.Constraint("Horizontal", 7))
sketch14.addConstraint(Sketcher.Constraint("Horizontal", 10))
sketch14.addConstraint(Sketcher.Constraint("Parallel", 0, 3))
sketch14.addConstraint(Sketcher.Constraint("Parallel", 2, 5))
sketch14.addConstraint(Sketcher.Constraint("Parallel", 3, 6))
sketch14.addConstraint(Sketcher.Constraint("Parallel", 5, 8))
sketch14.addConstraint(Sketcher.Constraint("Parallel", 6, 9))
sketch14.addConstraint(Sketcher.Constraint("Parallel", 8, 11))
sketch14.addConstraint(Sketcher.Constraint("Horizontal", 2, 2, 5, 2))
sketch14.addConstraint(Sketcher.Constraint("Horizontal", 1, 2, 6, 2))
sketch14.addConstraint(Sketcher.Constraint("Horizontal", 5, 2, 8, 2))
sketch14.addConstraint(Sketcher.Constraint("Horizontal", 4, 2, 9, 2))
sketch14.addConstraint(Sketcher.Constraint("Horizontal", 8, 2, 11, 2))
sketch14.addConstraint(Sketcher.Constraint("Vertical", 1, 2, 3, 2))
sketch14.addConstraint(Sketcher.Constraint("Vertical", 0, 2, 4, 2))
sketch14.addConstraint(Sketcher.Constraint("Equal", 4, 7))
sketch14.addConstraint(Sketcher.Constraint("Angle", 0, Q("60 deg")))
sketch14.addConstraint(Sketcher.Constraint("DistanceY", 2, 2, 1, 2, Q("3 mm")))
sketch14.addConstraint(Sketcher.Constraint("DistanceY", 0, 2, -1, 1, Q("4.5 mm")))
sketch14.addConstraint(Sketcher.Constraint("DistanceX", 1, 1, 1, 2, Q("3.464102 mm")))
sketch14.addConstraint(Sketcher.Constraint("DistanceX", 8, 2, -1, 1, Q("16.535898 mm")))
sketch14.addConstraint(Sketcher.Constraint("DistanceX", 7, 2, 5, 2, Q("36.304412 mm")))
pocket10 = body.newObject("PartDesign::Pocket", "Pocket009")
pocket10.Profile = sketch14
pocket10.Length = 3
pocket10.Reversed = True

# Sketch on XY plane
sketch15 = body.newObject("Sketcher::SketchObject", "Sketch014")
sketch15.AttachmentSupport = (doc.getObject("XY_Plane"), [""])
sketch15.MapMode = "FlatFace"
sketch15.addGeometry(Part.Circle(V(21.5, -7.5, 0), V(0, 0, 1), 1.6), False)
sketch15.addGeometry(Part.Circle(V(-20, -7.5, 0), V(0, 0, 1), 1.6), False)
sketch15.addConstraint(Sketcher.Constraint("Equal", 0, 1))
sketch15.addConstraint(Sketcher.Constraint("Horizontal", 0, 3, 1, 3))
sketch15.addConstraint(Sketcher.Constraint("Diameter", 0, Q("3.2 mm")))
sketch15.addConstraint(Sketcher.Constraint("DistanceX", 1, 3, -1, 1, Q("20 mm")))
sketch15.addConstraint(Sketcher.Constraint("DistanceY", 0, 3, -1, 1, Q("7.5 mm")))
sketch15.addConstraint(Sketcher.Constraint("DistanceX", -1, 1, 0, 3, Q("21.500564 mm")))
pocket11 = body.newObject("PartDesign::Pocket", "Pocket010")
pocket11.Profile = sketch15
pocket11.Length = 20
pocket11.Reversed = True

doc.recompute()
